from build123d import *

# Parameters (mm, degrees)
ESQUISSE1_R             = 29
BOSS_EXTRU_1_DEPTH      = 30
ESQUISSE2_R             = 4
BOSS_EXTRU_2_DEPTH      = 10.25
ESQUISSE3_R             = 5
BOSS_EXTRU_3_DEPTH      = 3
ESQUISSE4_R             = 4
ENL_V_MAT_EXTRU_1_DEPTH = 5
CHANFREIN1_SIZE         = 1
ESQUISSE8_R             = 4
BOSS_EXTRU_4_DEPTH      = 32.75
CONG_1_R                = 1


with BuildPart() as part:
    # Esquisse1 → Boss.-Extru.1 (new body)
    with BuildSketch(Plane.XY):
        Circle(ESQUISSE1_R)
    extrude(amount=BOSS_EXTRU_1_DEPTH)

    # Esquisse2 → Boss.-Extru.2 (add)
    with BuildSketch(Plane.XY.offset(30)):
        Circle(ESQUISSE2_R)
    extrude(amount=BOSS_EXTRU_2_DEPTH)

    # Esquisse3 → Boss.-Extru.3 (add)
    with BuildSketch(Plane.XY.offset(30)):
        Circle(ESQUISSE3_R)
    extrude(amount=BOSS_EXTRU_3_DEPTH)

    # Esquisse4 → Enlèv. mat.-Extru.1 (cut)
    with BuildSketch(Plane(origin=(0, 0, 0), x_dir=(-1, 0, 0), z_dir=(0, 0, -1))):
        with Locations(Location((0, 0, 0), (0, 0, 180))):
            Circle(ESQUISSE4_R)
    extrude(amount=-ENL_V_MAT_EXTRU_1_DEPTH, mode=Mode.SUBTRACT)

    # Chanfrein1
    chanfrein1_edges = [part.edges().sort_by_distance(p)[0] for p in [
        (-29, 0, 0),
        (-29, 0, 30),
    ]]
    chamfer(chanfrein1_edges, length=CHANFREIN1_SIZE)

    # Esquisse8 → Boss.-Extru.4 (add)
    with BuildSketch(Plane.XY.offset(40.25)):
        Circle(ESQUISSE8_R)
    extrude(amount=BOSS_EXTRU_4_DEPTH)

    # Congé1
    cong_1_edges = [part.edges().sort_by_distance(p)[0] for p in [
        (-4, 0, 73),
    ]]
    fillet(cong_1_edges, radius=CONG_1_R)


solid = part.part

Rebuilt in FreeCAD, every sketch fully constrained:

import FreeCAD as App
import Part
import Sketcher
from FreeCAD import Vector


def edges_at(feature, points):
    """Names of the edges that pass closest to the given points."""
    edges = feature.Shape.Edges
    near = lambda p: min(range(len(edges)), key=lambda i: edges[i].distToShape(Part.Vertex(*p))[0])
    return sorted({f"Edge{near(p) + 1}" for p in points})

doc = App.newDocument("Part")
body = doc.addObject("PartDesign::Body", "Body")

# Sketch on XY plane
sketch1 = doc.addObject("Sketcher::SketchObject", "Sketch")
body.addObject(sketch1)
sketch1.AttachmentSupport = (doc.XY_Plane, [""])
sketch1.MapMode = "FlatFace"
sketch1.addGeometry(Part.Circle(Vector(0, 0, 0), Vector(0, 0, 1), 29), False)
sketch1.addConstraint(Sketcher.Constraint("Coincident", 0, 3, -1, 1))
sketch1.addConstraint(Sketcher.Constraint("Diameter", 0, 58.0))
pad1 = doc.addObject("PartDesign::Pad", "Pad")
body.addObject(pad1)
pad1.Profile = sketch1
pad1.Length = 30

# Sketch on XY plane
sketch2 = doc.addObject("Sketcher::SketchObject", "Sketch001")
body.addObject(sketch2)
sketch2.AttachmentSupport = (doc.XY_Plane, [""])
sketch2.MapMode = "FlatFace"
sketch2.AttachmentOffset = App.Placement(Vector(0, 0, 30), App.Rotation())
sketch2.addGeometry(Part.Circle(Vector(0, 0, 0), Vector(0, 0, 1), 4), False)
sketch2.addConstraint(Sketcher.Constraint("Coincident", 0, 3, -1, 1))
sketch2.addConstraint(Sketcher.Constraint("Diameter", 0, 8.0))
pad2 = doc.addObject("PartDesign::Pad", "Pad001")
body.addObject(pad2)
pad2.Profile = sketch2
pad2.Length = 10.25

# Sketch on XY plane
sketch3 = doc.addObject("Sketcher::SketchObject", "Sketch002")
body.addObject(sketch3)
sketch3.AttachmentSupport = (doc.XY_Plane, [""])
sketch3.MapMode = "FlatFace"
sketch3.AttachmentOffset = App.Placement(Vector(0, 0, 30), App.Rotation())
sketch3.addGeometry(Part.Circle(Vector(0, 0, 0), Vector(0, 0, 1), 5), False)
sketch3.addConstraint(Sketcher.Constraint("Coincident", 0, 3, -1, 1))
sketch3.addConstraint(Sketcher.Constraint("Diameter", 0, 10.0))
pad3 = doc.addObject("PartDesign::Pad", "Pad002")
body.addObject(pad3)
pad3.Profile = sketch3
pad3.Length = 3

# Sketch on XY plane
sketch4 = doc.addObject("Sketcher::SketchObject", "Sketch003")
body.addObject(sketch4)
sketch4.AttachmentSupport = (doc.XY_Plane, [""])
sketch4.MapMode = "FlatFace"
sketch4.addGeometry(Part.Circle(Vector(0, 0, 0), Vector(0, 0, 1), 4), False)
sketch4.addConstraint(Sketcher.Constraint("Coincident", 0, 3, -1, 1))
sketch4.addConstraint(Sketcher.Constraint("Diameter", 0, 8.0))
pocket1 = doc.addObject("PartDesign::Pocket", "Pocket")
body.addObject(pocket1)
pocket1.Profile = sketch4
pocket1.Length = 5
pocket1.Reversed = True
doc.recompute()

chamfer = doc.addObject("PartDesign::Chamfer", "Chamfer")
body.addObject(chamfer)
chamfer.Base = (pocket1, edges_at(pocket1, [(-29, 0, 0), (-29, 0, 30)]))
chamfer.Size = 1

# Sketch on XY plane
sketch5 = doc.addObject("Sketcher::SketchObject", "Sketch004")
body.addObject(sketch5)
sketch5.AttachmentSupport = (doc.XY_Plane, [""])
sketch5.MapMode = "FlatFace"
sketch5.AttachmentOffset = App.Placement(Vector(0, 0, 40.25), App.Rotation())
sketch5.addGeometry(Part.Circle(Vector(0, 0, 0), Vector(0, 0, 1), 4), False)
sketch5.addConstraint(Sketcher.Constraint("Coincident", 0, 3, -1, 1))
sketch5.addConstraint(Sketcher.Constraint("Diameter", 0, 8.0))
pad4 = doc.addObject("PartDesign::Pad", "Pad003")
body.addObject(pad4)
pad4.Profile = sketch5
pad4.Length = 32.75
doc.recompute()

fillet = doc.addObject("PartDesign::Fillet", "Fillet")
body.addObject(fillet)
fillet.Base = (pad4, edges_at(pad4, [(-4, 0, 73)]))
fillet.Radius = 1

doc.recompute()
